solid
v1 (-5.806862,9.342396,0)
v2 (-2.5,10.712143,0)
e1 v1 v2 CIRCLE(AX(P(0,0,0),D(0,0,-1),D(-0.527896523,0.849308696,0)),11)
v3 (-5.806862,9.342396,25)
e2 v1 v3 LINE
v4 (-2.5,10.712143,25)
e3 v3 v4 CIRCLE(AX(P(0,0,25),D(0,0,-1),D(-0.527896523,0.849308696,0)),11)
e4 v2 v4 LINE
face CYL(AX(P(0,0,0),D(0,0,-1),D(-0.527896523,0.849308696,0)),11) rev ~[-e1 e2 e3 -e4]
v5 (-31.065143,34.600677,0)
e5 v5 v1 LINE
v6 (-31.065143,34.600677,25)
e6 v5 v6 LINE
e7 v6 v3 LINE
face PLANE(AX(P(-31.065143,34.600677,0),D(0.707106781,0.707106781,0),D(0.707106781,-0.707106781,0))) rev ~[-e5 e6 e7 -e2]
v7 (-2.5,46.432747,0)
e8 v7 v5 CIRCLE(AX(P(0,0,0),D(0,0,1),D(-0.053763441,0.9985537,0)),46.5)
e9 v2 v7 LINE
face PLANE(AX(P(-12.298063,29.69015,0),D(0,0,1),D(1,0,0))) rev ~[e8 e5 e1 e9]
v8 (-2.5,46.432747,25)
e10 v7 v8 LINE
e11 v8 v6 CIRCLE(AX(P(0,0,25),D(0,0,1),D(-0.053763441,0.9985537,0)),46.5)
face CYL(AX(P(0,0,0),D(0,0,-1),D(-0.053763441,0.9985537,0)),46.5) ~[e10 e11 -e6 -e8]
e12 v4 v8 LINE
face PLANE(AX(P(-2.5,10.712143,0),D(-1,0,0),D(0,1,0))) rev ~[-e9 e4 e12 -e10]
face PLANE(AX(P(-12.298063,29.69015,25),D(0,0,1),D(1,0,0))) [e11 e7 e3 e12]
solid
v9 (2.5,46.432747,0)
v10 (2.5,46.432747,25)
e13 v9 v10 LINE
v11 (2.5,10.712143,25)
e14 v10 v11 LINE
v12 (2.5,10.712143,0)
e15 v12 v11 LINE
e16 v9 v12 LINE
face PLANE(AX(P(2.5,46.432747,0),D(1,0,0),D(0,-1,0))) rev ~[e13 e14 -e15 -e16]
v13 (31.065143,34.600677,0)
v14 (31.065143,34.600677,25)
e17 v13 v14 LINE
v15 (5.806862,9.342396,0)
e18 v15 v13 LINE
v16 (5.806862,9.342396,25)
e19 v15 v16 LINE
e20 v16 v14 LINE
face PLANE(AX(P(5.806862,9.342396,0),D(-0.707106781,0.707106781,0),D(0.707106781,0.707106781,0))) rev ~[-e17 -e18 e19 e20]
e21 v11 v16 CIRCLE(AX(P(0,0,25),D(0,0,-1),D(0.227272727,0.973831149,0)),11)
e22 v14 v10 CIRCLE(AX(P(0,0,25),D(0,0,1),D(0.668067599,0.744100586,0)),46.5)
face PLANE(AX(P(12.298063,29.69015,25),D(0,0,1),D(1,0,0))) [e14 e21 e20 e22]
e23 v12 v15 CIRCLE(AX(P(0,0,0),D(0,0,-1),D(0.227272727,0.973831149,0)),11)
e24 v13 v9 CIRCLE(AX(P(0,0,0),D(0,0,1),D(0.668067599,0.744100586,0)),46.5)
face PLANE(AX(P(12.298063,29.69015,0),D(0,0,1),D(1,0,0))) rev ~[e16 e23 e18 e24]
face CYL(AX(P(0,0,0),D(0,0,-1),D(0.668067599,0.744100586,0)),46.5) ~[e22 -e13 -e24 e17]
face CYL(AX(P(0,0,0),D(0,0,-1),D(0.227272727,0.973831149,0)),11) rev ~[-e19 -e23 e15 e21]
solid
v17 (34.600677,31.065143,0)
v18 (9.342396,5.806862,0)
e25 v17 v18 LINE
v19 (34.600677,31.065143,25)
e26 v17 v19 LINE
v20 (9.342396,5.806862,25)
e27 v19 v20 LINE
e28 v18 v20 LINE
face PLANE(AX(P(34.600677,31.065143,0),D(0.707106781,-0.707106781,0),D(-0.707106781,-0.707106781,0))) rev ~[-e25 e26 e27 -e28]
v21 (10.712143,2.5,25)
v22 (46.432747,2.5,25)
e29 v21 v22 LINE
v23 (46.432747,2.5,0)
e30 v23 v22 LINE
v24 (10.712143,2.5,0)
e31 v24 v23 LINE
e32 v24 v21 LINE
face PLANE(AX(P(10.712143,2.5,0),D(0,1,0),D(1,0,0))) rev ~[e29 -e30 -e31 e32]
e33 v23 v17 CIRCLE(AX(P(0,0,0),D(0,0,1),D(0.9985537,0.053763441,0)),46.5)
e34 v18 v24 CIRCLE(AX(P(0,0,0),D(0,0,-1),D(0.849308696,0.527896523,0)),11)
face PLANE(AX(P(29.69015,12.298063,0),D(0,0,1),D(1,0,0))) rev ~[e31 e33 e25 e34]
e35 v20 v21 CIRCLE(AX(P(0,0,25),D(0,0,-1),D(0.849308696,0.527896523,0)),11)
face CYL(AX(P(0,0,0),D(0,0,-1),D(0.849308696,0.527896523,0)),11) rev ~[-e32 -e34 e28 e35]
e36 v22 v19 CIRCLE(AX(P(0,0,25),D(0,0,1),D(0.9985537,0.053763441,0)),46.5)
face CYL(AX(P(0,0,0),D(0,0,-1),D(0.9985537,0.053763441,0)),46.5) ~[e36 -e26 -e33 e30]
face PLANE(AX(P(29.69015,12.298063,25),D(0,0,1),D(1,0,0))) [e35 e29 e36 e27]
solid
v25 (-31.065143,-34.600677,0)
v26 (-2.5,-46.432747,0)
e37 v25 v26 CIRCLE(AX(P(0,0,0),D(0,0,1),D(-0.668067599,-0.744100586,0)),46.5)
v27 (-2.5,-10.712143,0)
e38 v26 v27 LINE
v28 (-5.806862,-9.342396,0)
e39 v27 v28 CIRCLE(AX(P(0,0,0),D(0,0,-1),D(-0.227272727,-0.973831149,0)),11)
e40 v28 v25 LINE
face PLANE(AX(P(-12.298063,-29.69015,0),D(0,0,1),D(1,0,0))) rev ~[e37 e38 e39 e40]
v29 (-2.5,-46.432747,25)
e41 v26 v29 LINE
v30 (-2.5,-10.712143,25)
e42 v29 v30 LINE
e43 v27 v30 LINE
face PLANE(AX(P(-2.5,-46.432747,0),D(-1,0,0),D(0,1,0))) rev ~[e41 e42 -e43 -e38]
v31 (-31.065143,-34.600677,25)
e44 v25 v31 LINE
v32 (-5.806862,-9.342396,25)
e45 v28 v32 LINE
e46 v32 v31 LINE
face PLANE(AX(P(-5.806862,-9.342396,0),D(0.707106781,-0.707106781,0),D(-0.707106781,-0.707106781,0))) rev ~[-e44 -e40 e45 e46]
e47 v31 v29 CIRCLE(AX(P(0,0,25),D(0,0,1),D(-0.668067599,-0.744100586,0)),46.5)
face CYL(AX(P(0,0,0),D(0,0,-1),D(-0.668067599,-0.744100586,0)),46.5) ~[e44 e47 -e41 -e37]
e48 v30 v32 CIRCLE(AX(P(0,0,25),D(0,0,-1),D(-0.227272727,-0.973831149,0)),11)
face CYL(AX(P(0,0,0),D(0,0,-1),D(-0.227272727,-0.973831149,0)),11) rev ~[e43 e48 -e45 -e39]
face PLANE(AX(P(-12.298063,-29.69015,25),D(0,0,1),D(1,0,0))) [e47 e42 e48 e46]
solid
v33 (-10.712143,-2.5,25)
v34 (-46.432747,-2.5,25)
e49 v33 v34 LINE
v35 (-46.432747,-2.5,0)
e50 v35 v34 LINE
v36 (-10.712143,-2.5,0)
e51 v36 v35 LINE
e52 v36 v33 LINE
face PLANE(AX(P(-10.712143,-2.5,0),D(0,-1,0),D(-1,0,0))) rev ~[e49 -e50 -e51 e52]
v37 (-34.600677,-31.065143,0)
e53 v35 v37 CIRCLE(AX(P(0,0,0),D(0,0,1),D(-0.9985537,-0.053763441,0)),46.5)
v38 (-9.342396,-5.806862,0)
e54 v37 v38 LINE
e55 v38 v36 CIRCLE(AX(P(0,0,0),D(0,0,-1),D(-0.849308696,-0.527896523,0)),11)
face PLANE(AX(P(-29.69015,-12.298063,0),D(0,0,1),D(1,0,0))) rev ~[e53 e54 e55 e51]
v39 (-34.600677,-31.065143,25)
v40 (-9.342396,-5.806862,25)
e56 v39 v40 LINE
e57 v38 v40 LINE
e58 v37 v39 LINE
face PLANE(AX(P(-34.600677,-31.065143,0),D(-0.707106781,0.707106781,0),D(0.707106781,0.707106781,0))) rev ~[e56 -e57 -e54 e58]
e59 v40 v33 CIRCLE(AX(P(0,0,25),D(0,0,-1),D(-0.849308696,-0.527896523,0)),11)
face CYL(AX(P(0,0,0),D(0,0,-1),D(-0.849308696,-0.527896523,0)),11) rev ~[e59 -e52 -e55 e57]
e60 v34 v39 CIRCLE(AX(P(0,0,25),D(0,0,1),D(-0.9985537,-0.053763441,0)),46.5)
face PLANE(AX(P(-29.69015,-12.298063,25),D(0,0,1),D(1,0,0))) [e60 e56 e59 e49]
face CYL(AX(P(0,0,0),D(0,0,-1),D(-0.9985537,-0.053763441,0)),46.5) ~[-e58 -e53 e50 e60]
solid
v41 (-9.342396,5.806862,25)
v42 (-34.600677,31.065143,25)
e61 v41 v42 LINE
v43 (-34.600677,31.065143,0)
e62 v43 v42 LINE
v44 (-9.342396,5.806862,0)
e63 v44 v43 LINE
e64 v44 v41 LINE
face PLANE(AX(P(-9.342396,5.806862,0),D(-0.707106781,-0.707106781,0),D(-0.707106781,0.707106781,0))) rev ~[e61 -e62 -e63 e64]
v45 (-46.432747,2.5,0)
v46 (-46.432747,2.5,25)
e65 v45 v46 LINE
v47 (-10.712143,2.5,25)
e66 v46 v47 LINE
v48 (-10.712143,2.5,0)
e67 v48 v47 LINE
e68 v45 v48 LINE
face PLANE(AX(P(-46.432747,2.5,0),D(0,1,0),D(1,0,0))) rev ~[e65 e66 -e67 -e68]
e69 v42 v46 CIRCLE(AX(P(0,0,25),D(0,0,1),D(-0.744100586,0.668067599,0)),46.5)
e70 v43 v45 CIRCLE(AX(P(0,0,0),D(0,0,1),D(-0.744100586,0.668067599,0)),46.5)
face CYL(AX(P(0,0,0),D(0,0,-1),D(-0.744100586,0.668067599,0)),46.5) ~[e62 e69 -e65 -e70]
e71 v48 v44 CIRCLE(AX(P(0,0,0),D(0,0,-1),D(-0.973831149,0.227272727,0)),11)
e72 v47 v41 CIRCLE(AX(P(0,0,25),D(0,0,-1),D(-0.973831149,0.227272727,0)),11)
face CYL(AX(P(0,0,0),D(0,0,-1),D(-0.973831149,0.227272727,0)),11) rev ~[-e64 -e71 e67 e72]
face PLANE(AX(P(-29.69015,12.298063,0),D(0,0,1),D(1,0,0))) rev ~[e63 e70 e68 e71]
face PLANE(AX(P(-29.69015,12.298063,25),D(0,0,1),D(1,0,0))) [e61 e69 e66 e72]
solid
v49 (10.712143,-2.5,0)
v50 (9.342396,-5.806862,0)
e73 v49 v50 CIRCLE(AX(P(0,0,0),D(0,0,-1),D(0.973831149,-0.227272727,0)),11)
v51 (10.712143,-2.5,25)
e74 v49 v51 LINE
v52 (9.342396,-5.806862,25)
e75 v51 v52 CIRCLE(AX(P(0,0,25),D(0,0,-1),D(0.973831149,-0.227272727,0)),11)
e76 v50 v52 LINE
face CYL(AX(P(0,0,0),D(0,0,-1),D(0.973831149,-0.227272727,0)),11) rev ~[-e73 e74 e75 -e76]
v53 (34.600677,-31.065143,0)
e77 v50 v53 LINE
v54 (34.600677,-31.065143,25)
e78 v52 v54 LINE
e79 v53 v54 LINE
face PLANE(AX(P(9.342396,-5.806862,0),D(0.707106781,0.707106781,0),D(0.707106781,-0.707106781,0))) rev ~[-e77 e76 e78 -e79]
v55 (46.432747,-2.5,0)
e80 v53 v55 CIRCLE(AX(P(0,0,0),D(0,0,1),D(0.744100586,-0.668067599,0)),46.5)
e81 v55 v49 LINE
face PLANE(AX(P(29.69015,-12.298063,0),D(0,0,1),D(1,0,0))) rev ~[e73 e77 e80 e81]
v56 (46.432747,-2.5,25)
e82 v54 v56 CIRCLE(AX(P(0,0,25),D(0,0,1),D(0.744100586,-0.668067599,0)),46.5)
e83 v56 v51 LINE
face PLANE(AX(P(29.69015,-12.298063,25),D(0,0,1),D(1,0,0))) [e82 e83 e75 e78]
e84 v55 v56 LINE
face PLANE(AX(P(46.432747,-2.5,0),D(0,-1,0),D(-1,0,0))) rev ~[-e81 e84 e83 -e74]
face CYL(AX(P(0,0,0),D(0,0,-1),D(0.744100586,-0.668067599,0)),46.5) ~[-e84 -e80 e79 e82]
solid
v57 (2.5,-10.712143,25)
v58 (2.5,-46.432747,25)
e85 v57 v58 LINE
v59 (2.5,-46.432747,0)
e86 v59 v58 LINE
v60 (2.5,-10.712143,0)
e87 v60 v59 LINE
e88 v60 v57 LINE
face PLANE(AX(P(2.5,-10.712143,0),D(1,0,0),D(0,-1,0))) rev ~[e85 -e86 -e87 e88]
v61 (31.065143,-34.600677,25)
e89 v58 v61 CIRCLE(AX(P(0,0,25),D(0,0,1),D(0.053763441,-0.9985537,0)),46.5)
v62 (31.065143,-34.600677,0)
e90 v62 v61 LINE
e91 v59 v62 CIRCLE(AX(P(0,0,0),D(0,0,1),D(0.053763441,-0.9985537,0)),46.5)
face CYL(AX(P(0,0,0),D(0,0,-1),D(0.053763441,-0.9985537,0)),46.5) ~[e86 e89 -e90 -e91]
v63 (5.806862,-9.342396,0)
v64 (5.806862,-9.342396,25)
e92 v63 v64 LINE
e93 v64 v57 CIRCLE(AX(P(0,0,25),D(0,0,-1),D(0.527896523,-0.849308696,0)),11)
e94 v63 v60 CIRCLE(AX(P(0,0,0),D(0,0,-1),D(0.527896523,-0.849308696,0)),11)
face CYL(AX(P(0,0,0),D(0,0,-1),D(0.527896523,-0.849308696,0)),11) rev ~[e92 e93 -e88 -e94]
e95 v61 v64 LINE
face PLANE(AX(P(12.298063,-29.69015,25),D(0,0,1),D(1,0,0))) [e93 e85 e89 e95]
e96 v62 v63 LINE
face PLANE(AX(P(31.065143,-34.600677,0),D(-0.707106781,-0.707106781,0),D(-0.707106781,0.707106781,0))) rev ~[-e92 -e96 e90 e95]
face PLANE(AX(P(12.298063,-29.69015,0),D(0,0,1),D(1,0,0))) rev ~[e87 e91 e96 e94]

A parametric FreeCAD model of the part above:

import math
import FreeCAD as App
import Part
import Sketcher
from FreeCAD import Vector
Q = App.Units.Quantity

doc = App.newDocument("Part")
params = doc.addObject("Spreadsheet::Sheet", "Params")
for row, (alias, value) in enumerate([
    ("sketch1_radius", "11 mm"),
    ("sketch1_radius2", "46.5 mm"),
    ("pad1_length", "25 mm"),
    ("sketch2_radius", "11 mm"),
    ("sketch2_radius2", "46.5 mm"),
    ("pad2_length", "25 mm"),
    ("sketch3_radius", "11 mm"),
    ("sketch3_radius2", "46.5 mm"),
    ("pad3_length", "25 mm"),
    ("sketch4_radius", "11 mm"),
    ("sketch4_radius2", "46.5 mm"),
    ("pad4_length", "25 mm"),
    ("sketch5_radius", "11 mm"),
    ("sketch5_radius2", "46.5 mm"),
    ("pad5_length", "25 mm"),
    ("sketch6_radius", "11 mm"),
    ("sketch6_radius2", "46.5 mm"),
    ("pad6_length", "25 mm"),
    ("sketch7_radius", "11 mm"),
    ("sketch7_radius2", "46.5 mm"),
    ("pad7_length", "25 mm"),
    ("sketch8_radius", "11 mm"),
    ("sketch8_radius2", "46.5 mm"),
    ("pad8_length", "25 mm"),
], start=1):
    params.set(f"A{row}", alias)
    params.set(f"B{row}", "=" + value)
    params.setAlias(f"B{row}", alias)

body = doc.addObject("PartDesign::Body", "Body")

# Sketch on XY plane
sketch1 = body.newObject("Sketcher::SketchObject", "Sketch")
sketch1.AttachmentSupport = (doc.getObject("XY_Plane"), [""])
sketch1.MapMode = "FlatFace"
sketch1.addGeometry([
    Part.LineSegment(Vector(-9.342396, 5.806862, 0), Vector(-34.600677, 31.065143, 0)),
    Part.ArcOfCircle(Part.Circle(Vector(0, 0, 0), Vector(0, 0, 1), 46.5), math.radians(138.081904), math.radians(176.918096)),
    Part.LineSegment(Vector(-46.432747, 2.5, 0), Vector(-10.712143, 2.5, 0)),
    Part.ArcOfCircle(Part.Circle(Vector(0, 0, 0), Vector(0, 0, 1), 11), math.radians(148.136559), math.radians(166.863441)),
], False)
sketch1.addConstraint([
    Sketcher.Constraint("Coincident", 0, 2, 1, 1),
    Sketcher.Constraint("Coincident", 1, 2, 2, 1),
    Sketcher.Constraint("Coincident", 2, 2, 3, 2),
    Sketcher.Constraint("Coincident", 3, 1, 0, 1),
    Sketcher.Constraint("Horizontal", 2),
    Sketcher.Constraint("Coincident", 1, 3, -1, 1),
    Sketcher.Constraint("Coincident", 3, 3, -1, 1),
    Sketcher.Constraint("Radius", 3, 11.0),
    Sketcher.Constraint("Radius", 1, 46.5),
    Sketcher.Constraint("Angle", 0, Q("135 deg")),
    Sketcher.Constraint("DistanceY", -1, 1, 1, 2, 2.5),
    Sketcher.Constraint("DistanceY", -1, 1, 3, 1, 5.806862),
])
sketch1.setExpression("Constraints[7]", "Params.sketch1_radius")
sketch1.setExpression("Constraints[8]", "Params.sketch1_radius2")
pad1 = body.newObject("PartDesign::Pad", "Pad")
pad1.Profile = sketch1
pad1.setExpression("Length", "Params.pad1_length")
body2 = doc.addObject("PartDesign::Body", "Body001")

# Sketch on XY plane
sketch2 = body2.newObject("Sketcher::SketchObject", "Sketch001")
sketch2.AttachmentSupport = (doc.getObject("XY_Plane001"), [""])
sketch2.MapMode = "FlatFace"
sketch2.addGeometry([
    Part.LineSegment(Vector(-2.5, 10.712143, 0), Vector(-2.5, 46.432747, 0)),
    Part.ArcOfCircle(Part.Circle(Vector(0, 0, 0), Vector(0, 0, 1), 46.5), math.radians(93.081904), math.radians(131.918096)),
    Part.LineSegment(Vector(-31.065143, 34.600677, 0), Vector(-5.806862, 9.342396, 0)),
    Part.ArcOfCircle(Part.Circle(Vector(0, 0, 0), Vector(0, 0, 1), 11), math.radians(103.136559), math.radians(121.863441)),
], False)
sketch2.addConstraint([
    Sketcher.Constraint("Coincident", 0, 2, 1, 1),
    Sketcher.Constraint("Coincident", 1, 2, 2, 1),
    Sketcher.Constraint("Coincident", 2, 2, 3, 2),
    Sketcher.Constraint("Coincident", 3, 1, 0, 1),
    Sketcher.Constraint("Vertical", 0),
    Sketcher.Constraint("Coincident", 1, 3, -1, 1),
    Sketcher.Constraint("Coincident", 3, 3, -1, 1),
    Sketcher.Constraint("Radius", 3, 11.0),
    Sketcher.Constraint("Radius", 1, 46.5),
    Sketcher.Constraint("Angle", 2, Q("-45 deg")),
    Sketcher.Constraint("DistanceX", 0, 2, -1, 1, 2.5),
    Sketcher.Constraint("DistanceX", 2, 2, -1, 1, 5.806862),
])
sketch2.setExpression("Constraints[7]", "Params.sketch2_radius")
sketch2.setExpression("Constraints[8]", "Params.sketch2_radius2")
pad2 = body2.newObject("PartDesign::Pad", "Pad001")
pad2.Profile = sketch2
pad2.setExpression("Length", "Params.pad2_length")
body3 = doc.addObject("PartDesign::Body", "Body002")

# Sketch on XY plane
sketch3 = body3.newObject("Sketcher::SketchObject", "Sketch002")
sketch3.AttachmentSupport = (doc.getObject("XY_Plane002"), [""])
sketch3.MapMode = "FlatFace"
sketch3.addGeometry([
    Part.LineSegment(Vector(5.806862, 9.342396, 0), Vector(31.065143, 34.600677, 0)),
    Part.ArcOfCircle(Part.Circle(Vector(0, 0, 0), Vector(0, 0, 1), 46.5), math.radians(48.081904), math.radians(86.918096)),
    Part.LineSegment(Vector(2.5, 46.432747, 0), Vector(2.5, 10.712143, 0)),
    Part.ArcOfCircle(Part.Circle(Vector(0, 0, 0), Vector(0, 0, 1), 11), math.radians(58.136559), math.radians(76.863441)),
], False)
sketch3.addConstraint([
    Sketcher.Constraint("Coincident", 0, 2, 1, 1),
    Sketcher.Constraint("Coincident", 1, 2, 2, 1),
    Sketcher.Constraint("Coincident", 2, 2, 3, 2),
    Sketcher.Constraint("Coincident", 3, 1, 0, 1),
    Sketcher.Constraint("Vertical", 2),
    Sketcher.Constraint("Coincident", 1, 3, -1, 1),
    Sketcher.Constraint("Coincident", 3, 3, -1, 1),
    Sketcher.Constraint("Radius", 3, 11.0),
    Sketcher.Constraint("Radius", 1, 46.5),
    Sketcher.Constraint("Angle", 0, Q("45 deg")),
    Sketcher.Constraint("DistanceX", -1, 1, 1, 2, 2.5),
    Sketcher.Constraint("DistanceX", -1, 1, 3, 1, 5.806862),
])
sketch3.setExpression("Constraints[7]", "Params.sketch3_radius")
sketch3.setExpression("Constraints[8]", "Params.sketch3_radius2")
pad3 = body3.newObject("PartDesign::Pad", "Pad002")
pad3.Profile = sketch3
pad3.setExpression("Length", "Params.pad3_length")
body4 = doc.addObject("PartDesign::Body", "Body003")

# Sketch on XY plane
sketch4 = body4.newObject("Sketcher::SketchObject", "Sketch003")
sketch4.AttachmentSupport = (doc.getObject("XY_Plane003"), [""])
sketch4.MapMode = "FlatFace"
sketch4.addGeometry([
    Part.LineSegment(Vector(10.712143, 2.5, 0), Vector(46.432747, 2.5, 0)),
    Part.ArcOfCircle(Part.Circle(Vector(0, 0, 0), Vector(0, 0, 1), 46.5), math.radians(3.081904), math.radians(41.918096)),
    Part.LineSegment(Vector(34.600677, 31.065143, 0), Vector(9.342396, 5.806862, 0)),
    Part.ArcOfCircle(Part.Circle(Vector(0, 0, 0), Vector(0, 0, 1), 11), math.radians(13.136559), math.radians(31.863441)),
], False)
sketch4.addConstraint([
    Sketcher.Constraint("Coincident", 0, 2, 1, 1),
    Sketcher.Constraint("Coincident", 1, 2, 2, 1),
    Sketcher.Constraint("Coincident", 2, 2, 3, 2),
    Sketcher.Constraint("Coincident", 3, 1, 0, 1),
    Sketcher.Constraint("Horizontal", 0),
    Sketcher.Constraint("Coincident", 1, 3, -1, 1),
    Sketcher.Constraint("Coincident", 3, 3, -1, 1),
    Sketcher.Constraint("Radius", 3, 11.0),
    Sketcher.Constraint("Radius", 1, 46.5),
    Sketcher.Constraint("Angle", 2, Q("-135 deg")),
    Sketcher.Constraint("DistanceY", -1, 1, 0, 2, 2.5),
    Sketcher.Constraint("DistanceY", -1, 1, 2, 2, 5.806862),
])
sketch4.setExpression("Constraints[7]", "Params.sketch4_radius")
sketch4.setExpression("Constraints[8]", "Params.sketch4_radius2")
pad4 = body4.newObject("PartDesign::Pad", "Pad003")
pad4.Profile = sketch4
pad4.setExpression("Length", "Params.pad4_length")
body5 = doc.addObject("PartDesign::Body", "Body004")

# Sketch on XY plane
sketch5 = body5.newObject("Sketcher::SketchObject", "Sketch004")
sketch5.AttachmentSupport = (doc.getObject("XY_Plane004"), [""])
sketch5.MapMode = "FlatFace"
sketch5.addGeometry([
    Part.ArcOfCircle(Part.Circle(Vector(0, 0, 0), Vector(0, 0, 1), 46.5), math.radians(-41.918096), math.radians(-3.081904)),
    Part.LineSegment(Vector(46.432747, -2.5, 0), Vector(10.712143, -2.5, 0)),
    Part.ArcOfCircle(Part.Circle(Vector(0, 0, 0), Vector(0, 0, 1), 11), math.radians(-31.863441), math.radians(-13.136559)),
    Part.LineSegment(Vector(9.342396, -5.806862, 0), Vector(34.600677, -31.065143, 0)),
], False)
sketch5.addConstraint([
    Sketcher.Constraint("Coincident", 0, 2, 1, 1),
    Sketcher.Constraint("Coincident", 1, 2, 2, 2),
    Sketcher.Constraint("Coincident", 2, 1, 3, 1),
    Sketcher.Constraint("Coincident", 3, 2, 0, 1),
    Sketcher.Constraint("Horizontal", 1),
    Sketcher.Constraint("Coincident", 0, 3, -1, 1),
    Sketcher.Constraint("Coincident", 2, 3, -1, 1),
    Sketcher.Constraint("Radius", 2, 11.0),
    Sketcher.Constraint("Radius", 0, 46.5),
    Sketcher.Constraint("Angle", 3, Q("-45 deg")),
    Sketcher.Constraint("DistanceY", 0, 2, -1, 1, 2.5),
    Sketcher.Constraint("DistanceY", 2, 1, -1, 1, 5.806862),
])
sketch5.setExpression("Constraints[7]", "Params.sketch5_radius")
sketch5.setExpression("Constraints[8]", "Params.sketch5_radius2")
pad5 = body5.newObject("PartDesign::Pad", "Pad004")
pad5.Profile = sketch5
pad5.setExpression("Length", "Params.pad5_length")
body6 = doc.addObject("PartDesign::Body", "Body005")

# Sketch on XY plane
sketch6 = body6.newObject("Sketcher::SketchObject", "Sketch005")
sketch6.AttachmentSupport = (doc.getObject("XY_Plane005"), [""])
sketch6.MapMode = "FlatFace"
sketch6.addGeometry([
    Part.ArcOfCircle(Part.Circle(Vector(0, 0, 0), Vector(0, 0, 1), 46.5), math.radians(-86.918096), math.radians(-48.081904)),
    Part.LineSegment(Vector(31.065143, -34.600677, 0), Vector(5.806862, -9.342396, 0)),
    Part.ArcOfCircle(Part.Circle(Vector(0, 0, 0), Vector(0, 0, 1), 11), math.radians(-76.863441), math.radians(-58.136559)),
    Part.LineSegment(Vector(2.5, -10.712143, 0), Vector(2.5, -46.432747, 0)),
], False)
sketch6.addConstraint([
    Sketcher.Constraint("Coincident", 0, 2, 1, 1),
    Sketcher.Constraint("Coincident", 1, 2, 2, 2),
    Sketcher.Constraint("Coincident", 2, 1, 3, 1),
    Sketcher.Constraint("Coincident", 3, 2, 0, 1),
    Sketcher.Constraint("Vertical", 3),
    Sketcher.Constraint("Coincident", 0, 3, -1, 1),
    Sketcher.Constraint("Coincident", 2, 3, -1, 1),
    Sketcher.Constraint("Radius", 2, 11.0),
    Sketcher.Constraint("Radius", 0, 46.5),
    Sketcher.Constraint("Angle", 1, Q("135 deg")),
    Sketcher.Constraint("DistanceX", -1, 1, 2, 1, 2.5),
    Sketcher.Constraint("DistanceX", -1, 1, 1, 2, 5.806862),
])
sketch6.setExpression("Constraints[7]", "Params.sketch6_radius")
sketch6.setExpression("Constraints[8]", "Params.sketch6_radius2")
pad6 = body6.newObject("PartDesign::Pad", "Pad005")
pad6.Profile = sketch6
pad6.setExpression("Length", "Params.pad6_length")
body7 = doc.addObject("PartDesign::Body", "Body006")

# Sketch on XY plane
sketch7 = body7.newObject("Sketcher::SketchObject", "Sketch006")
sketch7.AttachmentSupport = (doc.getObject("XY_Plane006"), [""])
sketch7.MapMode = "FlatFace"
sketch7.addGeometry([
    Part.ArcOfCircle(Part.Circle(Vector(0, 0, 0), Vector(0, 0, 1), 46.5), math.radians(-131.918096), math.radians(-93.081904)),
    Part.LineSegment(Vector(-2.5, -46.432747, 0), Vector(-2.5, -10.712143, 0)),
    Part.ArcOfCircle(Part.Circle(Vector(0, 0, 0), Vector(0, 0, 1), 11), math.radians(-121.863441), math.radians(-103.136559)),
    Part.LineSegment(Vector(-5.806862, -9.342396, 0), Vector(-31.065143, -34.600677, 0)),
], False)
sketch7.addConstraint([
    Sketcher.Constraint("Coincident", 0, 2, 1, 1),
    Sketcher.Constraint("Coincident", 1, 2, 2, 2),
    Sketcher.Constraint("Coincident", 2, 1, 3, 1),
    Sketcher.Constraint("Coincident", 3, 2, 0, 1),
    Sketcher.Constraint("Vertical", 1),
    Sketcher.Constraint("Coincident", 0, 3, -1, 1),
    Sketcher.Constraint("Coincident", 2, 3, -1, 1),
    Sketcher.Constraint("Radius", 2, 11.0),
    Sketcher.Constraint("Radius", 0, 46.5),
    Sketcher.Constraint("Angle", 3, Q("-135 deg")),
    Sketcher.Constraint("DistanceX", 0, 2, -1, 1, 2.5),
    Sketcher.Constraint("DistanceX", 2, 1, -1, 1, 5.806862),
])
sketch7.setExpression("Constraints[7]", "Params.sketch7_radius")
sketch7.setExpression("Constraints[8]", "Params.sketch7_radius2")
pad7 = body7.newObject("PartDesign::Pad", "Pad006")
pad7.Profile = sketch7
pad7.setExpression("Length", "Params.pad7_length")
body8 = doc.addObject("PartDesign::Body", "Body007")

# Sketch on XY plane
sketch8 = body8.newObject("Sketcher::SketchObject", "Sketch007")
sketch8.AttachmentSupport = (doc.getObject("XY_Plane007"), [""])
sketch8.MapMode = "FlatFace"
sketch8.addGeometry([
    Part.ArcOfCircle(Part.Circle(Vector(0, 0, 0), Vector(0, 0, 1), 46.5), math.radians(-176.918096), math.radians(-138.081904)),
    Part.LineSegment(Vector(-34.600677, -31.065143, 0), Vector(-9.342396, -5.806862, 0)),
    Part.ArcOfCircle(Part.Circle(Vector(0, 0, 0), Vector(0, 0, 1), 11), math.radians(-166.863441), math.radians(-148.136559)),
    Part.LineSegment(Vector(-10.712143, -2.5, 0), Vector(-46.432747, -2.5, 0)),
], False)
sketch8.addConstraint([
    Sketcher.Constraint("Coincident", 0, 2, 1, 1),
    Sketcher.Constraint("Coincident", 1, 2, 2, 2),
    Sketcher.Constraint("Coincident", 2, 1, 3, 1),
    Sketcher.Constraint("Coincident", 3, 2, 0, 1),
    Sketcher.Constraint("Horizontal", 3),
    Sketcher.Constraint("Coincident", 0, 3, -1, 1),
    Sketcher.Constraint("Coincident", 2, 3, -1, 1),
    Sketcher.Constraint("Radius", 2, 11.0),
    Sketcher.Constraint("Radius", 0, 46.5),
    Sketcher.Constraint("Angle", 1, Q("45 deg")),
    Sketcher.Constraint("DistanceY", 2, 1, -1, 1, 2.5),
    Sketcher.Constraint("DistanceY", 1, 2, -1, 1, 5.806862),
])
sketch8.setExpression("Constraints[7]", "Params.sketch8_radius")
sketch8.setExpression("Constraints[8]", "Params.sketch8_radius2")
pad8 = body8.newObject("PartDesign::Pad", "Pad007")
pad8.Profile = sketch8
pad8.setExpression("Length", "Params.pad8_length")

doc.recompute()
